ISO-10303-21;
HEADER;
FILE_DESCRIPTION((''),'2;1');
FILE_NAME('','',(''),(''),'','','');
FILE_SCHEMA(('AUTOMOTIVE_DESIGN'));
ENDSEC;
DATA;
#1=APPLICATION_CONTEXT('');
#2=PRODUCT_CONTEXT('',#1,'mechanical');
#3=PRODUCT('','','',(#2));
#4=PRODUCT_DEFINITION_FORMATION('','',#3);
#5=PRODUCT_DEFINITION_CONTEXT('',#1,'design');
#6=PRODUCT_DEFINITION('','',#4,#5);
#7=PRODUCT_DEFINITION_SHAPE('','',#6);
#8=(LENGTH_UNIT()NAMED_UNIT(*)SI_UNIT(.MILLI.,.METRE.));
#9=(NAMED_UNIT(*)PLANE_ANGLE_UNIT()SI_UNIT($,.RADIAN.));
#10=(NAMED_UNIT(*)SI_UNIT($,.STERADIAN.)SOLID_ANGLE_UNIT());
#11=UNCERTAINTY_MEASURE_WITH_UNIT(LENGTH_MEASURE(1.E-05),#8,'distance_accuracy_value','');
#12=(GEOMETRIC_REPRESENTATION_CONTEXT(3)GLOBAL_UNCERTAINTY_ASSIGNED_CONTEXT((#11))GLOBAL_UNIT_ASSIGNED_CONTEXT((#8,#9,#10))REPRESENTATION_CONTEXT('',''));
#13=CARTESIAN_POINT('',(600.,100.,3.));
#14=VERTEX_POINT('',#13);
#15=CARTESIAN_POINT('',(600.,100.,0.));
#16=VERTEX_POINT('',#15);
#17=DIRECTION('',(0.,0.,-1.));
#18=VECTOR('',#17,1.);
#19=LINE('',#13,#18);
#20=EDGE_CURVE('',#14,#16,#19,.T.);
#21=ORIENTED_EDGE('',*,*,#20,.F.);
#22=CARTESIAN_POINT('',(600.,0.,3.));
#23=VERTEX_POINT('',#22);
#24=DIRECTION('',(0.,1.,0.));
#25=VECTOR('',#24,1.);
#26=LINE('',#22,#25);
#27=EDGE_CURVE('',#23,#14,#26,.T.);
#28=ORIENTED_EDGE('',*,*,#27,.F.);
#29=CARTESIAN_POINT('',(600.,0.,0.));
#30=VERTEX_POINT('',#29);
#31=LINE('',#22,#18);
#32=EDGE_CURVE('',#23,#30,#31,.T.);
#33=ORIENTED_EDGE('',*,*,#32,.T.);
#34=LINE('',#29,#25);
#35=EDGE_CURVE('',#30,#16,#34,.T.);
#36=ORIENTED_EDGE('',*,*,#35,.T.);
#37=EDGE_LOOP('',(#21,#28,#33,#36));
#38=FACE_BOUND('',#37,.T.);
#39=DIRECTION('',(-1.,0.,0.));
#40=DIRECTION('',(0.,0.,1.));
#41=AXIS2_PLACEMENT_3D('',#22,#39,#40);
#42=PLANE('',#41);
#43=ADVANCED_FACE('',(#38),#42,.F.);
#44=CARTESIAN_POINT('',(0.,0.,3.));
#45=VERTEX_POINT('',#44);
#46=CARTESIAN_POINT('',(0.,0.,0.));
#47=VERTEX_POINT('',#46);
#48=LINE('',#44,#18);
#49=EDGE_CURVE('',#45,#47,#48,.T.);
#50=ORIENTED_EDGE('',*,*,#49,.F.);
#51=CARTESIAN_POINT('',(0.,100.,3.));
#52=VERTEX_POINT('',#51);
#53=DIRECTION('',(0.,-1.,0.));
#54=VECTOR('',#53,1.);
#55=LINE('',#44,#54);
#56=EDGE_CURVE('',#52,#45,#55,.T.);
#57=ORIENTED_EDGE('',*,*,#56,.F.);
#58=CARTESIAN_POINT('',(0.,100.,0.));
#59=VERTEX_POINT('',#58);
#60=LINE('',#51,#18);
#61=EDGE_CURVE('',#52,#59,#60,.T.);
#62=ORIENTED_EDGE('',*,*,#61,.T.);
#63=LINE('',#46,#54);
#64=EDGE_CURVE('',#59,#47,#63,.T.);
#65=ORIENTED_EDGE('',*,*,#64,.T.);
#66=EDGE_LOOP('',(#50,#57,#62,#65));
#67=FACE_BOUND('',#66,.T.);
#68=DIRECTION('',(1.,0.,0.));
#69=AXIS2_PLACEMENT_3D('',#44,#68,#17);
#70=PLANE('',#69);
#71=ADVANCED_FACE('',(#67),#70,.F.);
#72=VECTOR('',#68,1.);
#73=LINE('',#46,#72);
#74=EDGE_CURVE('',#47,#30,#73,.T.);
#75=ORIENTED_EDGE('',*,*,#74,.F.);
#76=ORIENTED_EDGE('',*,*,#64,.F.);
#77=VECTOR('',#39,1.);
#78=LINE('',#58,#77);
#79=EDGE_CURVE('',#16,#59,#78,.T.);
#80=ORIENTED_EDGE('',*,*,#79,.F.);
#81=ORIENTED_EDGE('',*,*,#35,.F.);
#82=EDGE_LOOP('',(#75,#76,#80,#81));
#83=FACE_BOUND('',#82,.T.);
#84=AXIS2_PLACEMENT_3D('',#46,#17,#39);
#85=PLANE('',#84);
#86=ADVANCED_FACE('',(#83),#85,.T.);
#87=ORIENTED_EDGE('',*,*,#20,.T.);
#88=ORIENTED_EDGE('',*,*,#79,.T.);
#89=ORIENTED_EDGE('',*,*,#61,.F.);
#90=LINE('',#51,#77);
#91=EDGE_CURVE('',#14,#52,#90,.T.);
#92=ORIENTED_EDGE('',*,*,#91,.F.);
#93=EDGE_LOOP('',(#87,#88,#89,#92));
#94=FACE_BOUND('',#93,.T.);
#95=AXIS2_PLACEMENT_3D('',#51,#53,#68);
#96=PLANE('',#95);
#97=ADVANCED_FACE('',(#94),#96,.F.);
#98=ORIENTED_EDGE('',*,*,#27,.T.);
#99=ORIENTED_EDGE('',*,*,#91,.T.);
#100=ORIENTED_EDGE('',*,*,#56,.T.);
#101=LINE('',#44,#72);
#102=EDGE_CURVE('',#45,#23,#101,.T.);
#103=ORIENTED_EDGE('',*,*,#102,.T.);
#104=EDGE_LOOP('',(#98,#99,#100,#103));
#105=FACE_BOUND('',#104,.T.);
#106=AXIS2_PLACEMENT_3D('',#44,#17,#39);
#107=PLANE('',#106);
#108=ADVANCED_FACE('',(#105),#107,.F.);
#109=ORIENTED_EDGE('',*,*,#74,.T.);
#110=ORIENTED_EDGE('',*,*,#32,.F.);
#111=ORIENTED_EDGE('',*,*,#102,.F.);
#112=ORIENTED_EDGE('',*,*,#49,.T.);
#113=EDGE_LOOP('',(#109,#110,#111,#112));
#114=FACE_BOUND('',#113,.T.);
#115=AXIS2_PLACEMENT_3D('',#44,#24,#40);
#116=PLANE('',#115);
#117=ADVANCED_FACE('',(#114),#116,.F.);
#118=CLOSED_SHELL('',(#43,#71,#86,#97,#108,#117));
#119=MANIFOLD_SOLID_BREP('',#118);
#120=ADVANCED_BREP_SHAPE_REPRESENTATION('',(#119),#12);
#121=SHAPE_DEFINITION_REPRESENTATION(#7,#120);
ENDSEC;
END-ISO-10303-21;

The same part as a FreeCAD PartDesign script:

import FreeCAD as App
import Part
import Sketcher
from FreeCAD import Vector
Q = App.Units.Quantity


def add_polygon(sketch, points):
    """Adds a closed chain of lines whose ends are joined by coincident constraints."""
    first, n = sketch.GeometryCount, len(points)
    for a, b in zip(points, points[1:] + points[:1]):
        sketch.addGeometry(Part.LineSegment(App.Vector(*a, 0), App.Vector(*b, 0)), False)
    for i in range(n):
        sketch.addConstraint(Sketcher.Constraint("Coincident", first + i, 2, first + (i + 1) % n, 1))

doc = App.newDocument("Part")
params = doc.addObject("Spreadsheet::Sheet", "Params")
for row, (alias, value) in enumerate([
    ("sketch1_width", "600 mm"),
    ("sketch1_height", "100 mm"),
    ("pad1_length", "3 mm"),
], start=1):
    params.set(f"A{row}", alias)
    params.set(f"B{row}", "=" + value)
    params.setAlias(f"B{row}", alias)

body = doc.addObject("PartDesign::Body", "Body")

# Sketch on XY plane
sketch1 = body.newObject("Sketcher::SketchObject", "Sketch")
sketch1.AttachmentSupport = (doc.getObject("XY_Plane"), [""])
sketch1.MapMode = "FlatFace"
add_polygon(sketch1, [(0, 100), (0, 0), (600, 0), (600, 100)])  # lines 0-3
sketch1.addConstraint([
    Sketcher.Constraint("Vertical", 0),
    Sketcher.Constraint("Horizontal", 1),
    Sketcher.Constraint("Vertical", 2),
    Sketcher.Constraint("Horizontal", 3),
    Sketcher.Constraint("Coincident", 0, 2, -1, 1),
    Sketcher.Constraint("DistanceX", 1, 1, 1, 2, Q("600 mm")),
    Sketcher.Constraint("DistanceY", 0, 2, 0, 1, Q("100 mm")),
])
sketch1.setExpression("Constraints[9]", "Params.sketch1_width")
sketch1.setExpression("Constraints[10]", "Params.sketch1_height")
pad1 = body.newObject("PartDesign::Pad", "Pad")
pad1.Profile = sketch1
pad1.setExpression("Length", "Params.pad1_length")

doc.recompute()
